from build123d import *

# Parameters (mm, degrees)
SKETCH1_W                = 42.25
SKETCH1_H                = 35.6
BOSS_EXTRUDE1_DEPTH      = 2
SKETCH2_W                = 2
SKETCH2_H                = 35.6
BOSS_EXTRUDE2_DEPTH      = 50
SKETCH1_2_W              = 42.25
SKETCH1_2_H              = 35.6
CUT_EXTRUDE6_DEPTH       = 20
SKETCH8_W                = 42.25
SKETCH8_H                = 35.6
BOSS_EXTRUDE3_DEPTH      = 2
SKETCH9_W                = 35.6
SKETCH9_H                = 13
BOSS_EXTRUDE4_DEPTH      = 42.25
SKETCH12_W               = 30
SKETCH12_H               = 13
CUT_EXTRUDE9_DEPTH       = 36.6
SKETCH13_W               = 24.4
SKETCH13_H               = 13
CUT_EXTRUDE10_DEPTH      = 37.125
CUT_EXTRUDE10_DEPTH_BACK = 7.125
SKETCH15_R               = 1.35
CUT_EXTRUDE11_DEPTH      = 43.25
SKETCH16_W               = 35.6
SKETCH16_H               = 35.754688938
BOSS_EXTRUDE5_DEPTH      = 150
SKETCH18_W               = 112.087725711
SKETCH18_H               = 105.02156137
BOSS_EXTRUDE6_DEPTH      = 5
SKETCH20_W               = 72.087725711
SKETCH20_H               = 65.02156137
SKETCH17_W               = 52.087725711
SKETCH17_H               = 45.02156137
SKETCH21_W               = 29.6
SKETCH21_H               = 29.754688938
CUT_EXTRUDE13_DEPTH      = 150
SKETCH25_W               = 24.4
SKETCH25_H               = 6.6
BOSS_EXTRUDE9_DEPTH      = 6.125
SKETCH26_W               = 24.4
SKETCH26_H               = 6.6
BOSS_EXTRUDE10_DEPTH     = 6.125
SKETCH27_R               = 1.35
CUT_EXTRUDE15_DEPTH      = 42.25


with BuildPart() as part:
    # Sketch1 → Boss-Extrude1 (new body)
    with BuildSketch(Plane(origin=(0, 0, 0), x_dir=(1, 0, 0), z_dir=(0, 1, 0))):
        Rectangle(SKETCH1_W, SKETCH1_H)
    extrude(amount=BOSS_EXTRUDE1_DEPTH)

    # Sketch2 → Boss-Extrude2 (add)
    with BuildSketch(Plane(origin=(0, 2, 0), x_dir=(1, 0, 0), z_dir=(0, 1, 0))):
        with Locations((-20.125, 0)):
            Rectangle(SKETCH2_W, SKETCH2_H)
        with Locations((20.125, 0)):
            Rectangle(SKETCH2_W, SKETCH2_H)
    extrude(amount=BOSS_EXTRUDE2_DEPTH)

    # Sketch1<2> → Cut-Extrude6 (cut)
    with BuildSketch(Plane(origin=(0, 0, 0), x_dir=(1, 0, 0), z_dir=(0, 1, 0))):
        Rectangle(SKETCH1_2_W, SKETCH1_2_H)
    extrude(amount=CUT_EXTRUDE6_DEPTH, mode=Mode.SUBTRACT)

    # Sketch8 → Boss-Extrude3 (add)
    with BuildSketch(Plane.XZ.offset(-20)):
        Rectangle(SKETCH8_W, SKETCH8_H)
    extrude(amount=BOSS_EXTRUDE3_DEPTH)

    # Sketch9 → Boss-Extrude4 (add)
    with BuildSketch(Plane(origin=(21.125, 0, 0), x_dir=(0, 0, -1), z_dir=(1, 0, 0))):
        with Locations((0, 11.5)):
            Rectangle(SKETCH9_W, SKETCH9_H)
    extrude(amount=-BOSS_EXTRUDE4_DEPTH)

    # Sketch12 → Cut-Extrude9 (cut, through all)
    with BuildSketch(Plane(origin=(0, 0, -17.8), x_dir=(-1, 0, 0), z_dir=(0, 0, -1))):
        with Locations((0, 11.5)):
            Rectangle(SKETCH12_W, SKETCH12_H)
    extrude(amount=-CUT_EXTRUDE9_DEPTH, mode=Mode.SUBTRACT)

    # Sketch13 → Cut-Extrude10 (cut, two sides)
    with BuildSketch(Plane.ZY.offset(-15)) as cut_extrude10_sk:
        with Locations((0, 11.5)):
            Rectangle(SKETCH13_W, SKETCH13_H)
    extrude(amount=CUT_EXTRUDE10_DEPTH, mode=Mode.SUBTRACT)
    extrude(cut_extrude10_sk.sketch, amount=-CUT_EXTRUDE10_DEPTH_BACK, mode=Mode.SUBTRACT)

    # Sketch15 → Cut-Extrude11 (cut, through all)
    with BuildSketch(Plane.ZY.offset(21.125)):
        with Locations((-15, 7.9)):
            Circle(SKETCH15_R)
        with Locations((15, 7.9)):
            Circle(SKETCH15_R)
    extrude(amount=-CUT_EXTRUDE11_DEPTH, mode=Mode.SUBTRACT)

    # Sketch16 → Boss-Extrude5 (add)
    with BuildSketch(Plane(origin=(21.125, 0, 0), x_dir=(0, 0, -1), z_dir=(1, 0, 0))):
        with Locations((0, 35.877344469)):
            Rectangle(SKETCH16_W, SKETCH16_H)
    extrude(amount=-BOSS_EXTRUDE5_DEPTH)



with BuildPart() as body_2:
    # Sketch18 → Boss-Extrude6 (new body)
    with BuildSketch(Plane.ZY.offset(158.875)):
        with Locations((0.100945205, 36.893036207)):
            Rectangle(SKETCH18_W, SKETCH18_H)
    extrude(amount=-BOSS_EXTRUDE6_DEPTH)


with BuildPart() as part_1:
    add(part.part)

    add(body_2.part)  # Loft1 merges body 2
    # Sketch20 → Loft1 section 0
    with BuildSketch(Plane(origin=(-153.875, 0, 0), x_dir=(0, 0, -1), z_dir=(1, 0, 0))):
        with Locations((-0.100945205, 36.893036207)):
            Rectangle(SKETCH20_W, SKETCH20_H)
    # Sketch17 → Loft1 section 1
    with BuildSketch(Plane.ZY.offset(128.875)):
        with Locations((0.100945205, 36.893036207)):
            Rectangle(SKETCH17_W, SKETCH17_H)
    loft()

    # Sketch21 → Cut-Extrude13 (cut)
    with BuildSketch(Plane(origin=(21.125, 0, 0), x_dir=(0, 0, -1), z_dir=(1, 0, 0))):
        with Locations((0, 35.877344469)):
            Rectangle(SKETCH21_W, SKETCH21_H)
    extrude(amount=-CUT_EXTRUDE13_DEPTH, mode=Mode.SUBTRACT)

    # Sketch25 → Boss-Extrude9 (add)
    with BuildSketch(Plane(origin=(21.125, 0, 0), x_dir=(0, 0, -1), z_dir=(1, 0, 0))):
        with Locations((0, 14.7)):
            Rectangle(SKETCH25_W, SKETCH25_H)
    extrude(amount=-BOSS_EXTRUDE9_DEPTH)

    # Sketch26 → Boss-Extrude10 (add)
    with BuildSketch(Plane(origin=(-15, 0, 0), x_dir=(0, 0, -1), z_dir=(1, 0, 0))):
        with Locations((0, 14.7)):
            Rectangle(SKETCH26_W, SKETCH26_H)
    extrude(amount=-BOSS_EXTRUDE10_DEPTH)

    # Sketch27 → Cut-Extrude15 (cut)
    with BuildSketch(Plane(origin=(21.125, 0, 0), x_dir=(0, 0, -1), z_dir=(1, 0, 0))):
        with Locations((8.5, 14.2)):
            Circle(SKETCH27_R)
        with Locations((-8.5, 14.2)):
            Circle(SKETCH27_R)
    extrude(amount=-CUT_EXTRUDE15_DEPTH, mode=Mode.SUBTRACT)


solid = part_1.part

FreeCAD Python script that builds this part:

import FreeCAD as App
import Part
import Sketcher

V = App.Vector
Q = App.Units.Quantity


def add_polygon(sketch, points):
    """Adds a closed chain of lines whose ends are joined by coincident constraints."""
    first, n = sketch.GeometryCount, len(points)
    for a, b in zip(points, points[1:] + points[:1]):
        sketch.addGeometry(Part.LineSegment(App.Vector(*a, 0), App.Vector(*b, 0)), False)
    for i in range(n):
        sketch.addConstraint(Sketcher.Constraint("Coincident", first + i, 2, first + (i + 1) % n, 1))

doc = App.newDocument("Part")
body = doc.addObject("PartDesign::Body", "Body")
body.AllowCompound = True

# Sketch on XZ plane
sketch1 = body.newObject("Sketcher::SketchObject", "Sketch")
sketch1.AttachmentSupport = (doc.getObject("XZ_Plane"), [""])
sketch1.MapMode = "FlatFace"
add_polygon(sketch1, [(-21, -18), (-21, 18), (21, 18), (21, -18)])  # lines 0-3
sketch1.addConstraint([
    Sketcher.Constraint("Vertical", 0),
    Sketcher.Constraint("Horizontal", 1),
    Sketcher.Constraint("Vertical", 2),
    Sketcher.Constraint("Horizontal", 3),
    Sketcher.Constraint("Symmetric", 0, 2, 2, 2, -1, 1),
    Sketcher.Constraint("DistanceY", 0, 1, 0, 2, Q("35.6 mm")),
    Sketcher.Constraint("DistanceX", 1, 1, 1, 2, Q("42.25 mm")),
])
pad1 = body.newObject("PartDesign::Pad", "Pad")
pad1.Profile = sketch1
pad1.Length = 2
pad1.Reversed = True

# Sketch on XZ plane
sketch2 = body.newObject("Sketcher::SketchObject", "Sketch001")
sketch2.AttachmentSupport = (doc.getObject("XZ_Plane"), [""])
sketch2.MapMode = "FlatFace"
sketch2.AttachmentOffset = App.Placement(V(0, 0, -2), App.Rotation())
add_polygon(sketch2, [(-21.1, -17.8), (-21.1, 17.8), (-19.1, 17.8), (-19.1, -17.8)])  # lines 0-3
add_polygon(sketch2, [(19.1, -17.8), (19.1, 17.8), (21.1, 17.8), (21.1, -17.8)])  # lines 4-7
sketch2.addConstraint([
    Sketcher.Constraint("Vertical", 0),
    Sketcher.Constraint("Horizontal", 1),
    Sketcher.Constraint("Vertical", 2),
    Sketcher.Constraint("Horizontal", 3),
    Sketcher.Constraint("Vertical", 4),
    Sketcher.Constraint("Horizontal", 5),
    Sketcher.Constraint("Vertical", 6),
    Sketcher.Constraint("Horizontal", 7),
    Sketcher.Constraint("Symmetric", 2, 2, 4, 2, -1, 1),
    Sketcher.Constraint("Symmetric", 0, 2, 6, 2, -1, 1),
    Sketcher.Constraint("Horizontal", 1, 2, 4, 2),
    Sketcher.Constraint("DistanceX", 1, 1, 1, 2, Q("2 mm")),
    Sketcher.Constraint("DistanceY", 0, 1, 0, 2, Q("35.6 mm")),
    Sketcher.Constraint("DistanceX", 1, 2, 4, 2, Q("38.25 mm")),
])
pad2 = body.newObject("PartDesign::Pad", "Pad001")
pad2.Profile = sketch2
pad2.Length = 50
pad2.Reversed = True

# Sketch on XZ plane
sketch3 = body.newObject("Sketcher::SketchObject", "Sketch002")
sketch3.AttachmentSupport = (doc.getObject("XZ_Plane"), [""])
sketch3.MapMode = "FlatFace"
add_polygon(sketch3, [(-21, -18), (-21, 18), (21, 18), (21, -18)])  # lines 0-3
sketch3.addConstraint([
    Sketcher.Constraint("Vertical", 0),
    Sketcher.Constraint("Horizontal", 1),
    Sketcher.Constraint("Vertical", 2),
    Sketcher.Constraint("Horizontal", 3),
    Sketcher.Constraint("Symmetric", 0, 2, 2, 2, -1, 1),
    Sketcher.Constraint("DistanceY", 0, 1, 0, 2, Q("35.6 mm")),
    Sketcher.Constraint("DistanceX", 1, 1, 1, 2, Q("42.25 mm")),
])
pocket1 = body.newObject("PartDesign::Pocket", "Pocket")
pocket1.Profile = sketch3
pocket1.Length = 20

# Sketch on XZ plane
sketch4 = body.newObject("Sketcher::SketchObject", "Sketch003")
sketch4.AttachmentSupport = (doc.getObject("XZ_Plane"), [""])
sketch4.MapMode = "FlatFace"
sketch4.AttachmentOffset = App.Placement(V(0, 0, -20), App.Rotation())
add_polygon(sketch4, [(-21, 18), (-21, -18), (21, -18), (21, 18)])  # lines 0-3
sketch4.addConstraint([
    Sketcher.Constraint("Vertical", 0),
    Sketcher.Constraint("Horizontal", 1),
    Sketcher.Constraint("Vertical", 2),
    Sketcher.Constraint("Horizontal", 3),
    Sketcher.Constraint("Symmetric", 0, 2, 2, 2, -1, 1),
    Sketcher.Constraint("DistanceY", 0, 2, 0, 1, Q("35.6 mm")),
    Sketcher.Constraint("DistanceX", 1, 1, 1, 2, Q("42.25 mm")),
])
pad3 = body.newObject("PartDesign::Pad", "Pad002")
pad3.Profile = sketch4
pad3.Length = 2

# Sketch on YZ plane
sketch5 = body.newObject("Sketcher::SketchObject", "Sketch004")
sketch5.AttachmentSupport = (doc.getObject("YZ_Plane"), [""])
sketch5.MapMode = "FlatFace"
sketch5.AttachmentOffset = App.Placement(V(0, 0, 21.125), App.Rotation())
add_polygon(sketch5, [(18, 18), (5, 18), (5, -18), (18, -18)])  # lines 0-3
sketch5.addConstraint([
    Sketcher.Constraint("Horizontal", 0),
    Sketcher.Constraint("Vertical", 1),
    Sketcher.Constraint("Horizontal", 2),
    Sketcher.Constraint("Vertical", 3),
    Sketcher.Constraint("DistanceX", 0, 2, 0, 1, Q("13 mm")),
    Sketcher.Constraint("DistanceY", 1, 2, 1, 1, Q("35.6 mm")),
    Sketcher.Constraint("DistanceX", -1, 1, 0, 2, Q("5 mm")),
    Sketcher.Constraint("DistanceY", -1, 1, 0, 2, Q("17.8 mm")),
])
pad4 = body.newObject("PartDesign::Pad", "Pad003")
pad4.Profile = sketch5
pad4.Length = 42.25
pad4.Reversed = True

# Sketch on XY plane
sketch6 = body.newObject("Sketcher::SketchObject", "Sketch005")
sketch6.AttachmentSupport = (doc.getObject("XY_Plane"), [""])
sketch6.MapMode = "FlatFace"
sketch6.AttachmentOffset = App.Placement(V(0, 0, -17.8), App.Rotation())
add_polygon(sketch6, [(15, 18), (15, 5), (-15, 5), (-15, 18)])  # lines 0-3
sketch6.addConstraint([
    Sketcher.Constraint("Vertical", 0),
    Sketcher.Constraint("Horizontal", 1),
    Sketcher.Constraint("Vertical", 2),
    Sketcher.Constraint("Horizontal", 3),
    Sketcher.Constraint("DistanceX", 1, 2, 1, 1, Q("30 mm")),
    Sketcher.Constraint("DistanceY", 0, 2, 0, 1, Q("13 mm")),
    Sketcher.Constraint("DistanceX", -1, 1, 0, 2, Q("15 mm")),
    Sketcher.Constraint("DistanceY", -1, 1, 0, 2, Q("5 mm")),
])
pocket2 = body.newObject("PartDesign::Pocket", "Pocket001")
pocket2.Profile = sketch6
pocket2.Type = "ThroughAll"
pocket2.Reversed = True

# Sketch on YZ plane
sketch7 = body.newObject("Sketcher::SketchObject", "Sketch006")
sketch7.AttachmentSupport = (doc.getObject("YZ_Plane"), [""])
sketch7.MapMode = "FlatFace"
sketch7.AttachmentOffset = App.Placement(V(0, 0, 15), App.Rotation())
add_polygon(sketch7, [(18, -12), (5, -12), (5, 12), (18, 12)])  # lines 0-3
sketch7.addConstraint([
    Sketcher.Constraint("Horizontal", 0),
    Sketcher.Constraint("Vertical", 1),
    Sketcher.Constraint("Horizontal", 2),
    Sketcher.Constraint("Vertical", 3),
    Sketcher.Constraint("DistanceX", 0, 2, 0, 1, Q("13 mm")),
    Sketcher.Constraint("DistanceY", 1, 1, 1, 2, Q("24.4 mm")),
    Sketcher.Constraint("DistanceX", -1, 1, 0, 2, Q("5 mm")),
    Sketcher.Constraint("DistanceY", 0, 2, -1, 1, Q("12.2 mm")),
])
pocket3 = body.newObject("PartDesign::Pocket", "Pocket002")
pocket3.Profile = sketch7
pocket3.Type = "ThroughAll"
pocket3.Midplane = True

# Sketch on YZ plane
sketch8 = body.newObject("Sketcher::SketchObject", "Sketch007")
sketch8.AttachmentSupport = (doc.getObject("YZ_Plane"), [""])
sketch8.MapMode = "FlatFace"
sketch8.AttachmentOffset = App.Placement(V(0, 0, -21.125), App.Rotation())
sketch8.addGeometry([
    Part.Circle(V(7.9, -15, 0), V(0, 0, 1), 1.4),
    Part.Circle(V(7.9, 15, 0), V(0, 0, 1), 1.4),
], False)
sketch8.addConstraint([
    Sketcher.Constraint("Equal", 0, 1),
    Sketcher.Constraint("Symmetric", 0, 3, 1, 3, -1),
    Sketcher.Constraint("Diameter", 0, Q("2.7 mm")),
    Sketcher.Constraint("DistanceY", 0, 3, -1, 1, Q("15 mm")),
    Sketcher.Constraint("DistanceX", -1, 1, 0, 3, Q("7.9 mm")),
])
pocket4 = body.newObject("PartDesign::Pocket", "Pocket003")
pocket4.Profile = sketch8
pocket4.Type = "ThroughAll"
pocket4.Reversed = True

# Sketch on YZ plane
sketch9 = body.newObject("Sketcher::SketchObject", "Sketch008")
sketch9.AttachmentSupport = (doc.getObject("YZ_Plane"), [""])
sketch9.MapMode = "FlatFace"
sketch9.AttachmentOffset = App.Placement(V(0, 0, 21.125), App.Rotation())
add_polygon(sketch9, [(54, 18), (18, 18), (18, -18), (54, -18)])  # lines 0-3
sketch9.addConstraint([
    Sketcher.Constraint("Horizontal", 0),
    Sketcher.Constraint("Vertical", 1),
    Sketcher.Constraint("Horizontal", 2),
    Sketcher.Constraint("Vertical", 3),
    Sketcher.Constraint("DistanceY", 1, 2, 1, 1, Q("35.6 mm")),
    Sketcher.Constraint("DistanceX", -1, 1, 0, 2, Q("18 mm")),
    Sketcher.Constraint("DistanceY", -1, 1, 0, 2, Q("17.8 mm")),
    Sketcher.Constraint("DistanceX", 0, 2, 0, 1, Q("35.754689 mm")),
])
pad5 = body.newObject("PartDesign::Pad", "Pad004")
pad5.Profile = sketch9
pad5.Length = 150
pad5.Reversed = True
body2 = doc.addObject("PartDesign::Body", "Body001")

# Sketch on YZ plane
sketch10 = body2.newObject("Sketcher::SketchObject", "Sketch009")
sketch10.AttachmentSupport = (doc.getObject("YZ_Plane001"), [""])
sketch10.MapMode = "FlatFace"
sketch10.AttachmentOffset = App.Placement(V(0, 0, -158.875), App.Rotation())
add_polygon(sketch10, [(89, -56), (-16, -56), (-16, 56), (89, 56)])  # lines 0-3
sketch10.addConstraint([
    Sketcher.Constraint("Horizontal", 0),
    Sketcher.Constraint("Vertical", 1),
    Sketcher.Constraint("Horizontal", 2),
    Sketcher.Constraint("Vertical", 3),
    Sketcher.Constraint("DistanceX", 0, 2, 0, 1, Q("105.021561 mm")),
    Sketcher.Constraint("DistanceY", 1, 1, 1, 2, Q("112.087726 mm")),
    Sketcher.Constraint("DistanceY", -1, 1, 1, 2, Q("56.144808 mm")),
    Sketcher.Constraint("DistanceX", 0, 2, -1, 1, Q("15.617744 mm")),
])
pad6 = body2.newObject("PartDesign::Pad", "Pad005")
pad6.Profile = sketch10
pad6.Length = 5
body.AllowCompound = True
doc.recompute()

boolean = body.newObject("PartDesign::Boolean", "Boolean")
boolean.Type = "Fuse"
boolean.addObjects([body2])

# Sketch on YZ plane
sketch11 = body.newObject("Sketcher::SketchObject", "Sketch010")
sketch11.AttachmentSupport = (doc.getObject("YZ_Plane"), [""])
sketch11.MapMode = "FlatFace"
sketch11.AttachmentOffset = App.Placement(V(0, 0, -153.875), App.Rotation())
add_polygon(sketch11, [(69, 36), (4, 36), (4, -36), (69, -36)])  # lines 0-3
sketch11.addConstraint([
    Sketcher.Constraint("Horizontal", 0),
    Sketcher.Constraint("Vertical", 1),
    Sketcher.Constraint("Horizontal", 2),
    Sketcher.Constraint("Vertical", 3),
    Sketcher.Constraint("DistanceX", 0, 2, 0, 1, Q("65.021561 mm")),
    Sketcher.Constraint("DistanceY", 1, 2, 1, 1, Q("72.087726 mm")),
    Sketcher.Constraint("DistanceY", -1, 1, 0, 2, Q("36.144808 mm")),
    Sketcher.Constraint("DistanceX", -1, 1, 0, 2, Q("4.382256 mm")),
])

# Sketch on YZ plane
sketch12 = body.newObject("Sketcher::SketchObject", "Sketch011")
sketch12.AttachmentSupport = (doc.getObject("YZ_Plane"), [""])
sketch12.MapMode = "FlatFace"
sketch12.AttachmentOffset = App.Placement(V(0, 0, -128.875), App.Rotation())
add_polygon(sketch12, [(59, -26), (14, -26), (14, 26), (59, 26)])  # lines 0-3
sketch12.addConstraint([
    Sketcher.Constraint("Horizontal", 0),
    Sketcher.Constraint("Vertical", 1),
    Sketcher.Constraint("Horizontal", 2),
    Sketcher.Constraint("Vertical", 3),
    Sketcher.Constraint("DistanceX", 0, 2, 0, 1, Q("45.021561 mm")),
    Sketcher.Constraint("DistanceY", 1, 1, 1, 2, Q("52.087726 mm")),
    Sketcher.Constraint("DistanceY", -1, 1, 1, 2, Q("26.144808 mm")),
    Sketcher.Constraint("DistanceX", -1, 1, 0, 2, Q("14.382256 mm")),
])

additiveloft = body.newObject("PartDesign::AdditiveLoft", "AdditiveLoft")
additiveloft.Profile = sketch11
additiveloft.Sections = [sketch12]

# Sketch on YZ plane
sketch13 = body.newObject("Sketcher::SketchObject", "Sketch012")
sketch13.AttachmentSupport = (doc.getObject("YZ_Plane"), [""])
sketch13.MapMode = "FlatFace"
sketch13.AttachmentOffset = App.Placement(V(0, 0, 21.125), App.Rotation())
add_polygon(sketch13, [(51, 15), (21, 15), (21, -15), (51, -15)])  # lines 0-3
sketch13.addConstraint([
    Sketcher.Constraint("Horizontal", 0),
    Sketcher.Constraint("Vertical", 1),
    Sketcher.Constraint("Horizontal", 2),
    Sketcher.Constraint("Vertical", 3),
    Sketcher.Constraint("DistanceY", 1, 2, 1, 1, Q("29.6 mm")),
    Sketcher.Constraint("DistanceX", -1, 1, 0, 2, Q("21 mm")),
    Sketcher.Constraint("DistanceY", -1, 1, 0, 2, Q("14.8 mm")),
    Sketcher.Constraint("DistanceX", 0, 2, 0, 1, Q("29.754689 mm")),
])
pocket5 = body.newObject("PartDesign::Pocket", "Pocket004")
pocket5.Profile = sketch13
pocket5.Length = 150

# Sketch on YZ plane
sketch14 = body.newObject("Sketcher::SketchObject", "Sketch013")
sketch14.AttachmentSupport = (doc.getObject("YZ_Plane"), [""])
sketch14.MapMode = "FlatFace"
sketch14.AttachmentOffset = App.Placement(V(0, 0, 21.125), App.Rotation())
add_polygon(sketch14, [(18, 12), (11, 12), (11, -12), (18, -12)])  # lines 0-3
sketch14.addConstraint([
    Sketcher.Constraint("Horizontal", 0),
    Sketcher.Constraint("Vertical", 1),
    Sketcher.Constraint("Horizontal", 2),
    Sketcher.Constraint("Vertical", 3),
    Sketcher.Constraint("DistanceX", 0, 2, 0, 1, Q("6.6 mm")),
    Sketcher.Constraint("DistanceY", 1, 2, 1, 1, Q("24.4 mm")),
    Sketcher.Constraint("DistanceX", -1, 1, 2, 2, Q("18 mm")),
    Sketcher.Constraint("DistanceY", -1, 1, 0, 2, Q("12.2 mm")),
])
pad7 = body.newObject("PartDesign::Pad", "Pad006")
pad7.Profile = sketch14
pad7.Length = 6.125
pad7.Reversed = True

# Sketch on YZ plane
sketch15 = body.newObject("Sketcher::SketchObject", "Sketch014")
sketch15.AttachmentSupport = (doc.getObject("YZ_Plane"), [""])
sketch15.MapMode = "FlatFace"
sketch15.AttachmentOffset = App.Placement(V(0, 0, -15), App.Rotation())
add_polygon(sketch15, [(18, 12), (11, 12), (11, -12), (18, -12)])  # lines 0-3
sketch15.addConstraint([
    Sketcher.Constraint("Horizontal", 0),
    Sketcher.Constraint("Vertical", 1),
    Sketcher.Constraint("Horizontal", 2),
    Sketcher.Constraint("Vertical", 3),
    Sketcher.Constraint("DistanceX", 0, 2, 0, 1, Q("6.6 mm")),
    Sketcher.Constraint("DistanceY", 1, 2, 1, 1, Q("24.4 mm")),
    Sketcher.Constraint("DistanceX", -1, 1, 2, 2, Q("18 mm")),
    Sketcher.Constraint("DistanceY", -1, 1, 0, 2, Q("12.2 mm")),
])
pad8 = body.newObject("PartDesign::Pad", "Pad007")
pad8.Profile = sketch15
pad8.Length = 6.125
pad8.Reversed = True

# Sketch on YZ plane
sketch16 = body.newObject("Sketcher::SketchObject", "Sketch015")
sketch16.AttachmentSupport = (doc.getObject("YZ_Plane"), [""])
sketch16.MapMode = "FlatFace"
sketch16.AttachmentOffset = App.Placement(V(0, 0, 21.125), App.Rotation())
sketch16.addGeometry([
    Part.Circle(V(14.2, -8.5, 0), V(0, 0, 1), 1.4),
    Part.Circle(V(14.2, 8.5, 0), V(0, 0, 1), 1.4),
], False)
sketch16.addConstraint([
    Sketcher.Constraint("Equal", 0, 1),
    Sketcher.Constraint("Symmetric", 0, 3, 1, 3, -1),
    Sketcher.Constraint("Diameter", 0, Q("2.7 mm")),
    Sketcher.Constraint("DistanceY", 0, 3, 1, 3, Q("17 mm")),
    Sketcher.Constraint("DistanceX", -1, 1, 0, 3, Q("14.2 mm")),
])
pocket6 = body.newObject("PartDesign::Pocket", "Pocket005")
pocket6.Profile = sketch16
pocket6.Length = 42.25

doc.recompute()
